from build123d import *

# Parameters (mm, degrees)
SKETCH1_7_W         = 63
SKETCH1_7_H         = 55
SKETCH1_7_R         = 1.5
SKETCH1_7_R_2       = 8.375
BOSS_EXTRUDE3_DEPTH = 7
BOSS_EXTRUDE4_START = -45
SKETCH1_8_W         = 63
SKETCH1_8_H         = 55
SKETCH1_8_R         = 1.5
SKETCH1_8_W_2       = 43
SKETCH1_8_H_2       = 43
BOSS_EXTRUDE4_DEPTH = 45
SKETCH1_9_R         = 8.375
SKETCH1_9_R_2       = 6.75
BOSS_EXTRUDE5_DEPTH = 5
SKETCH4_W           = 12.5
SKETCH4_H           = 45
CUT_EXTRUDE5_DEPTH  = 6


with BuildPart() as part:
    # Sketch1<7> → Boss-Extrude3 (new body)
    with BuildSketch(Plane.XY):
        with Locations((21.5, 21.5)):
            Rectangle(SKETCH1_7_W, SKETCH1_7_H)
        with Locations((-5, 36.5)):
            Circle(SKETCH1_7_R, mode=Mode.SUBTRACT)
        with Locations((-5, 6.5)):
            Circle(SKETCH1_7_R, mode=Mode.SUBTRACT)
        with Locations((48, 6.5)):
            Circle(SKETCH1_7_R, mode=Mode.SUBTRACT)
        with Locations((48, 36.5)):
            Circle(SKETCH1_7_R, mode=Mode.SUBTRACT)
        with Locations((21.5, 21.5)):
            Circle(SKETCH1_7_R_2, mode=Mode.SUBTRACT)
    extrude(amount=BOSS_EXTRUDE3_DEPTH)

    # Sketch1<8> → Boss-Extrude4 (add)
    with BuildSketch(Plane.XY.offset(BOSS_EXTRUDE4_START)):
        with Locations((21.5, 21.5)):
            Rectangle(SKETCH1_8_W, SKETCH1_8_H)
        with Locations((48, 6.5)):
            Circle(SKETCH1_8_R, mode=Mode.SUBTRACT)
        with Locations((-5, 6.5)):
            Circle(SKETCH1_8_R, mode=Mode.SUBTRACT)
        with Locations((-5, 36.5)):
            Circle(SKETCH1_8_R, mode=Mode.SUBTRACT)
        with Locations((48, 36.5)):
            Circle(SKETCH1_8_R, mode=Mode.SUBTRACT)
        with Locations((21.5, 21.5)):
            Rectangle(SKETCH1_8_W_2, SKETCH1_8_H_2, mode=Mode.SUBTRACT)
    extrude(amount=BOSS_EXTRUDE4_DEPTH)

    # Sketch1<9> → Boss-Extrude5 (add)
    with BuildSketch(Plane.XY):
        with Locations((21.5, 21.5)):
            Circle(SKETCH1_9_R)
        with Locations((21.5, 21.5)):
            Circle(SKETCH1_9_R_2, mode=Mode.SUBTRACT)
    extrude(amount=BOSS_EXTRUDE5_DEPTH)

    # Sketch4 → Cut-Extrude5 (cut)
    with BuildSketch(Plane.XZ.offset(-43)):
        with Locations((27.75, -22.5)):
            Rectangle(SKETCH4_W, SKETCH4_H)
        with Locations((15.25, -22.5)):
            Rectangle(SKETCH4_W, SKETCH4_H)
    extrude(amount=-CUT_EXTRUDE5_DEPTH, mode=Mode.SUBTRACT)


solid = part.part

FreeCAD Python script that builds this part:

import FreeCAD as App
import Part
import Sketcher

V = App.Vector

doc = App.newDocument("Part")
body = doc.addObject("PartDesign::Body", "Body")

# Sketch on XY plane
sketch1 = body.newObject("Sketcher::SketchObject", "Sketch")
sketch1.AttachmentSupport = (doc.getObject("XY_Plane"), [""])
sketch1.MapMode = "FlatFace"
sketch1.addGeometry(Part.LineSegment(V(-10, 49, 0), V(-10, -6, 0)), False)
sketch1.addGeometry(Part.LineSegment(V(-10, -6, 0), V(53, -6, 0)), False)
sketch1.addGeometry(Part.LineSegment(V(53, -6, 0), V(53, 49, 0)), False)
sketch1.addGeometry(Part.LineSegment(V(53, 49, 0), V(-10, 49, 0)), False)
sketch1.addGeometry(Part.Circle(V(-5, 6.5, 0), V(0, 0, 1), 1.5), False)
sketch1.addGeometry(Part.Circle(V(48, 6.5, 0), V(0, 0, 1), 1.5), False)
sketch1.addGeometry(Part.Circle(V(-5, 36.5, 0), V(0, 0, 1), 1.5), False)
sketch1.addGeometry(Part.Circle(V(21.5, 21.5, 0), V(0, 0, 1), 8.4), False)
sketch1.addGeometry(Part.Circle(V(48, 36.5, 0), V(0, 0, 1), 1.5), False)
sketch1.addConstraint(Sketcher.Constraint("Coincident", 0, 2, 1, 1))
sketch1.addConstraint(Sketcher.Constraint("Coincident", 1, 2, 2, 1))
sketch1.addConstraint(Sketcher.Constraint("Coincident", 2, 2, 3, 1))
sketch1.addConstraint(Sketcher.Constraint("Coincident", 3, 2, 0, 1))
sketch1.addConstraint(Sketcher.Constraint("Vertical", 0))
sketch1.addConstraint(Sketcher.Constraint("Horizontal", 1))
sketch1.addConstraint(Sketcher.Constraint("Vertical", 2))
sketch1.addConstraint(Sketcher.Constraint("Horizontal", 3))
sketch1.addConstraint(Sketcher.Constraint("Equal", 4, 5))
sketch1.addConstraint(Sketcher.Constraint("Equal", 5, 6))
sketch1.addConstraint(Sketcher.Constraint("Equal", 6, 8))
sketch1.addConstraint(Sketcher.Constraint("Horizontal", 4, 3, 5, 3))
sketch1.addConstraint(Sketcher.Constraint("Horizontal", 6, 3, 8, 3))
sketch1.addConstraint(Sketcher.Constraint("Vertical", 4, 3, 6, 3))
sketch1.addConstraint(Sketcher.Constraint("Vertical", 5, 3, 8, 3))
sketch1.addConstraint(Sketcher.Constraint("Diameter", 4, 3.0))
sketch1.addConstraint(Sketcher.Constraint("Diameter", 7, 16.75))
sketch1.addConstraint(Sketcher.Constraint("DistanceX", 1, 1, 1, 2, 63.0))
sketch1.addConstraint(Sketcher.Constraint("DistanceY", 0, 2, 0, 1, 55.0))
sketch1.addConstraint(Sketcher.Constraint("DistanceX", 4, 3, -1, 1, 5.0))
sketch1.addConstraint(Sketcher.Constraint("DistanceX", -1, 1, 5, 3, 48.0))
sketch1.addConstraint(Sketcher.Constraint("DistanceX", 0, 2, -1, 1, 10.0))
sketch1.addConstraint(Sketcher.Constraint("DistanceY", 0, 2, -1, 1, 6.0))
sketch1.addConstraint(Sketcher.Constraint("DistanceY", 4, 3, 6, 3, 30.0))
sketch1.addConstraint(Sketcher.Constraint("DistanceY", 4, 3, 7, 3, 15.0))
sketch1.addConstraint(Sketcher.Constraint("DistanceY", -1, 1, 4, 3, 6.5))
sketch1.addConstraint(Sketcher.Constraint("DistanceX", -1, 1, 7, 3, 21.5))
pad1 = body.newObject("PartDesign::Pad", "Pad")
pad1.Profile = sketch1
pad1.Length = 7

# Sketch on XY plane
sketch2 = body.newObject("Sketcher::SketchObject", "Sketch001")
sketch2.AttachmentSupport = (doc.getObject("XY_Plane"), [""])
sketch2.MapMode = "FlatFace"
sketch2.AttachmentOffset = App.Placement(V(0, 0, -45), App.Rotation())
sketch2.addGeometry(Part.LineSegment(V(-10, 49, 0), V(-10, -6, 0)), False)
sketch2.addGeometry(Part.LineSegment(V(-10, -6, 0), V(53, -6, 0)), False)
sketch2.addGeometry(Part.LineSegment(V(53, -6, 0), V(53, 49, 0)), False)
sketch2.addGeometry(Part.LineSegment(V(53, 49, 0), V(-10, 49, 0)), False)
sketch2.addGeometry(Part.Circle(V(-5, 6.5, 0), V(0, 0, 1), 1.5), False)
sketch2.addGeometry(Part.Circle(V(48, 6.5, 0), V(0, 0, 1), 1.5), False)
sketch2.addGeometry(Part.Circle(V(-5, 36.5, 0), V(0, 0, 1), 1.5), False)
sketch2.addGeometry(Part.LineSegment(V(43, 0, 0), V(0, 0, 0)), False)
sketch2.addGeometry(Part.LineSegment(V(0, 0, 0), V(0, 43, 0)), False)
sketch2.addGeometry(Part.LineSegment(V(0, 43, 0), V(43, 43, 0)), False)
sketch2.addGeometry(Part.LineSegment(V(43, 43, 0), V(43, 0, 0)), False)
sketch2.addGeometry(Part.Circle(V(48, 36.5, 0), V(0, 0, 1), 1.5), False)
sketch2.addConstraint(Sketcher.Constraint("Coincident", 0, 2, 1, 1))
sketch2.addConstraint(Sketcher.Constraint("Coincident", 1, 2, 2, 1))
sketch2.addConstraint(Sketcher.Constraint("Coincident", 2, 2, 3, 1))
sketch2.addConstraint(Sketcher.Constraint("Coincident", 3, 2, 0, 1))
sketch2.addConstraint(Sketcher.Constraint("Coincident", 7, 2, 8, 1))
sketch2.addConstraint(Sketcher.Constraint("Coincident", 8, 2, 9, 1))
sketch2.addConstraint(Sketcher.Constraint("Coincident", 9, 2, 10, 1))
sketch2.addConstraint(Sketcher.Constraint("Coincident", 10, 2, 7, 1))
sketch2.addConstraint(Sketcher.Constraint("Vertical", 0))
sketch2.addConstraint(Sketcher.Constraint("Horizontal", 1))
sketch2.addConstraint(Sketcher.Constraint("Vertical", 2))
sketch2.addConstraint(Sketcher.Constraint("Horizontal", 3))
sketch2.addConstraint(Sketcher.Constraint("Horizontal", 7))
sketch2.addConstraint(Sketcher.Constraint("Vertical", 8))
sketch2.addConstraint(Sketcher.Constraint("Horizontal", 9))
sketch2.addConstraint(Sketcher.Constraint("Vertical", 10))
sketch2.addConstraint(Sketcher.Constraint("Coincident", 7, 2, -1, 1))
sketch2.addConstraint(Sketcher.Constraint("Equal", 4, 5))
sketch2.addConstraint(Sketcher.Constraint("Equal", 5, 6))
sketch2.addConstraint(Sketcher.Constraint("Equal", 6, 11))
sketch2.addConstraint(Sketcher.Constraint("Horizontal", 4, 3, 5, 3))
sketch2.addConstraint(Sketcher.Constraint("Horizontal", 6, 3, 11, 3))
sketch2.addConstraint(Sketcher.Constraint("Vertical", 4, 3, 6, 3))
sketch2.addConstraint(Sketcher.Constraint("Vertical", 5, 3, 11, 3))
sketch2.addConstraint(Sketcher.Constraint("Equal", 9, 8))
sketch2.addConstraint(Sketcher.Constraint("Diameter", 4, 3.0))
sketch2.addConstraint(Sketcher.Constraint("DistanceX", 1, 1, 1, 2, 63.0))
sketch2.addConstraint(Sketcher.Constraint("DistanceX", 7, 2, 7, 1, 43.0))
sketch2.addConstraint(Sketcher.Constraint("DistanceY", 0, 2, 0, 1, 55.0))
sketch2.addConstraint(Sketcher.Constraint("DistanceX", 4, 3, -1, 1, 5.0))
sketch2.addConstraint(Sketcher.Constraint("DistanceX", -1, 1, 5, 3, 48.0))
sketch2.addConstraint(Sketcher.Constraint("DistanceX", 0, 2, -1, 1, 10.0))
sketch2.addConstraint(Sketcher.Constraint("DistanceY", 0, 2, -1, 1, 6.0))
sketch2.addConstraint(Sketcher.Constraint("DistanceY", 4, 3, 6, 3, 30.0))
sketch2.addConstraint(Sketcher.Constraint("DistanceY", -1, 1, 4, 3, 6.5))
pad2 = body.newObject("PartDesign::Pad", "Pad001")
pad2.Profile = sketch2
pad2.Length = 45

# Sketch on XY plane
sketch3 = body.newObject("Sketcher::SketchObject", "Sketch002")
sketch3.AttachmentSupport = (doc.getObject("XY_Plane"), [""])
sketch3.MapMode = "FlatFace"
sketch3.addGeometry(Part.Circle(V(22, 22, 0), V(0, 0, 1), 8), False)
sketch3.addGeometry(Part.Circle(V(22, 22, 0), V(0, 0, 1), 7), False)
sketch3.addConstraint(Sketcher.Constraint("Coincident", 1, 3, 0, 3))
sketch3.addConstraint(Sketcher.Constraint("Diameter", 1, 13.5))
sketch3.addConstraint(Sketcher.Constraint("Diameter", 0, 16.75))
sketch3.addConstraint(Sketcher.Constraint("DistanceX", -1, 1, 0, 3, 21.5))
sketch3.addConstraint(Sketcher.Constraint("DistanceY", -1, 1, 0, 3, 21.5))
pad3 = body.newObject("PartDesign::Pad", "Pad002")
pad3.Profile = sketch3
pad3.Length = 5

# Sketch on XZ plane
sketch4 = body.newObject("Sketcher::SketchObject", "Sketch003")
sketch4.AttachmentSupport = (doc.getObject("XZ_Plane"), [""])
sketch4.MapMode = "FlatFace"
sketch4.AttachmentOffset = App.Placement(V(0, 0, -43), App.Rotation())
sketch4.addGeometry(Part.LineSegment(V(34, -45, 0), V(34, 0, 0)), False)
sketch4.addGeometry(Part.LineSegment(V(34, 0, 0), V(9, 0, 0)), False)
sketch4.addGeometry(Part.LineSegment(V(9, 0, 0), V(9, -45, 0)), False)
sketch4.addGeometry(Part.LineSegment(V(9, -45, 0), V(34, -45, 0)), False)
sketch4.addConstraint(Sketcher.Constraint("Coincident", 0, 2, 1, 1))
sketch4.addConstraint(Sketcher.Constraint("Coincident", 1, 2, 2, 1))
sketch4.addConstraint(Sketcher.Constraint("Coincident", 2, 2, 3, 1))
sketch4.addConstraint(Sketcher.Constraint("Coincident", 3, 2, 0, 1))
sketch4.addConstraint(Sketcher.Constraint("Vertical", 0))
sketch4.addConstraint(Sketcher.Constraint("Horizontal", 1))
sketch4.addConstraint(Sketcher.Constraint("Vertical", 2))
sketch4.addConstraint(Sketcher.Constraint("Horizontal", 3))
sketch4.addConstraint(Sketcher.Constraint("PointOnObject", 0, 2, -1))
sketch4.addConstraint(Sketcher.Constraint("DistanceX", 1, 2, 1, 1, 25.0))
sketch4.addConstraint(Sketcher.Constraint("DistanceY", 0, 1, 0, 2, 45.0))
sketch4.addConstraint(Sketcher.Constraint("DistanceX", -1, 1, 0, 2, 34.0))
pocket1 = body.newObject("PartDesign::Pocket", "Pocket")
pocket1.Profile = sketch4
pocket1.Length = 6

doc.recompute()
